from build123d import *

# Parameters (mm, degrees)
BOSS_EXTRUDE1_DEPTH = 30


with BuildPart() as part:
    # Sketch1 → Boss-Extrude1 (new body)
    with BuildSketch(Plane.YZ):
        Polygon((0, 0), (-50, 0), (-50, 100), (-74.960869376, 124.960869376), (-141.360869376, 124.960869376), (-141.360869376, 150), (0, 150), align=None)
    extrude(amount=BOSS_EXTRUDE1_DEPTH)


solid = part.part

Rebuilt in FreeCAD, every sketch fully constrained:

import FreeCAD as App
import Part
import Sketcher
Q = App.Units.Quantity

doc = App.newDocument("Part")
params = doc.addObject("Spreadsheet::Sheet", "Params")
for row, (alias, value) in enumerate([
    ("sketch1_width", "50 mm"),
    ("sketch1_height", "150 mm"),
    ("sketch1_height2", "100 mm"),
    ("sketch1_width2", "66.4 mm"),
    ("sketch1_length", "35.3 mm"),
    ("pad1_length", "30 mm"),
], start=1):
    params.set(f"A{row}", alias)
    params.set(f"B{row}", "=" + value)
    params.setAlias(f"B{row}", alias)

body = doc.addObject("PartDesign::Body", "Body")

# Sketch on YZ plane
sketch1 = body.newObject("Sketcher::SketchObject", "Sketch")
sketch1.AttachmentSupport = (doc.getObject("YZ_Plane"), [""])
sketch1.MapMode = "FlatFace"
sketch1.addGeometry(Part.LineSegment(App.Vector(-50, 0, 0), App.Vector(0, 0, 0)), False)
sketch1.addGeometry(Part.LineSegment(App.Vector(0, 0, 0), App.Vector(0, 150, 0)), False)
sketch1.addGeometry(Part.LineSegment(App.Vector(0, 150, 0), App.Vector(-141.360869, 150, 0)), False)
sketch1.addGeometry(Part.LineSegment(App.Vector(-141.360869, 150, 0), App.Vector(-141.360869, 124.960869, 0)), False)
sketch1.addGeometry(Part.LineSegment(App.Vector(-141.360869, 124.960869, 0), App.Vector(-74.960869, 124.960869, 0)), False)
sketch1.addGeometry(Part.LineSegment(App.Vector(-74.960869, 124.960869, 0), App.Vector(-50, 100, 0)), False)
sketch1.addGeometry(Part.LineSegment(App.Vector(-50, 100, 0), App.Vector(-50, 0, 0)), False)
sketch1.addConstraint(Sketcher.Constraint("Coincident", 0, 2, 1, 1))
sketch1.addConstraint(Sketcher.Constraint("Coincident", 1, 2, 2, 1))
sketch1.addConstraint(Sketcher.Constraint("Coincident", 2, 2, 3, 1))
sketch1.addConstraint(Sketcher.Constraint("Coincident", 3, 2, 4, 1))
sketch1.addConstraint(Sketcher.Constraint("Coincident", 4, 2, 5, 1))
sketch1.addConstraint(Sketcher.Constraint("Coincident", 5, 2, 6, 1))
sketch1.addConstraint(Sketcher.Constraint("Coincident", 6, 2, 0, 1))
sketch1.addConstraint(Sketcher.Constraint("Horizontal", 0))
sketch1.addConstraint(Sketcher.Constraint("Vertical", 1))
sketch1.addConstraint(Sketcher.Constraint("Horizontal", 2))
sketch1.addConstraint(Sketcher.Constraint("Vertical", 3))
sketch1.addConstraint(Sketcher.Constraint("Horizontal", 4))
sketch1.addConstraint(Sketcher.Constraint("Vertical", 6))
sketch1.addConstraint(Sketcher.Constraint("Coincident", 0, 2, -1, 1))
sketch1.addConstraint(Sketcher.Constraint("DistanceX", 0, 1, 0, 2, Q("50 mm")))
sketch1.addConstraint(Sketcher.Constraint("DistanceY", 1, 1, 1, 2, Q("150 mm")))
sketch1.addConstraint(Sketcher.Constraint("DistanceY", 6, 2, 6, 1, Q("100 mm")))
sketch1.addConstraint(Sketcher.Constraint("Angle", 5, Q("-45 deg")))
sketch1.addConstraint(Sketcher.Constraint("DistanceX", 4, 1, 4, 2, Q("66.4 mm")))
sketch1.addConstraint(Sketcher.Constraint("Distance", 5, Q("35.3 mm")))
sketch1.setExpression("Constraints[14]", "Params.sketch1_width")
sketch1.setExpression("Constraints[15]", "Params.sketch1_height")
sketch1.setExpression("Constraints[16]", "Params.sketch1_height2")
sketch1.setExpression("Constraints[18]", "Params.sketch1_width2")
sketch1.setExpression("Constraints[19]", "Params.sketch1_length")
pad1 = body.newObject("PartDesign::Pad", "Pad")
pad1.Profile = sketch1
pad1.setExpression("Length", "Params.pad1_length")

doc.recompute()
